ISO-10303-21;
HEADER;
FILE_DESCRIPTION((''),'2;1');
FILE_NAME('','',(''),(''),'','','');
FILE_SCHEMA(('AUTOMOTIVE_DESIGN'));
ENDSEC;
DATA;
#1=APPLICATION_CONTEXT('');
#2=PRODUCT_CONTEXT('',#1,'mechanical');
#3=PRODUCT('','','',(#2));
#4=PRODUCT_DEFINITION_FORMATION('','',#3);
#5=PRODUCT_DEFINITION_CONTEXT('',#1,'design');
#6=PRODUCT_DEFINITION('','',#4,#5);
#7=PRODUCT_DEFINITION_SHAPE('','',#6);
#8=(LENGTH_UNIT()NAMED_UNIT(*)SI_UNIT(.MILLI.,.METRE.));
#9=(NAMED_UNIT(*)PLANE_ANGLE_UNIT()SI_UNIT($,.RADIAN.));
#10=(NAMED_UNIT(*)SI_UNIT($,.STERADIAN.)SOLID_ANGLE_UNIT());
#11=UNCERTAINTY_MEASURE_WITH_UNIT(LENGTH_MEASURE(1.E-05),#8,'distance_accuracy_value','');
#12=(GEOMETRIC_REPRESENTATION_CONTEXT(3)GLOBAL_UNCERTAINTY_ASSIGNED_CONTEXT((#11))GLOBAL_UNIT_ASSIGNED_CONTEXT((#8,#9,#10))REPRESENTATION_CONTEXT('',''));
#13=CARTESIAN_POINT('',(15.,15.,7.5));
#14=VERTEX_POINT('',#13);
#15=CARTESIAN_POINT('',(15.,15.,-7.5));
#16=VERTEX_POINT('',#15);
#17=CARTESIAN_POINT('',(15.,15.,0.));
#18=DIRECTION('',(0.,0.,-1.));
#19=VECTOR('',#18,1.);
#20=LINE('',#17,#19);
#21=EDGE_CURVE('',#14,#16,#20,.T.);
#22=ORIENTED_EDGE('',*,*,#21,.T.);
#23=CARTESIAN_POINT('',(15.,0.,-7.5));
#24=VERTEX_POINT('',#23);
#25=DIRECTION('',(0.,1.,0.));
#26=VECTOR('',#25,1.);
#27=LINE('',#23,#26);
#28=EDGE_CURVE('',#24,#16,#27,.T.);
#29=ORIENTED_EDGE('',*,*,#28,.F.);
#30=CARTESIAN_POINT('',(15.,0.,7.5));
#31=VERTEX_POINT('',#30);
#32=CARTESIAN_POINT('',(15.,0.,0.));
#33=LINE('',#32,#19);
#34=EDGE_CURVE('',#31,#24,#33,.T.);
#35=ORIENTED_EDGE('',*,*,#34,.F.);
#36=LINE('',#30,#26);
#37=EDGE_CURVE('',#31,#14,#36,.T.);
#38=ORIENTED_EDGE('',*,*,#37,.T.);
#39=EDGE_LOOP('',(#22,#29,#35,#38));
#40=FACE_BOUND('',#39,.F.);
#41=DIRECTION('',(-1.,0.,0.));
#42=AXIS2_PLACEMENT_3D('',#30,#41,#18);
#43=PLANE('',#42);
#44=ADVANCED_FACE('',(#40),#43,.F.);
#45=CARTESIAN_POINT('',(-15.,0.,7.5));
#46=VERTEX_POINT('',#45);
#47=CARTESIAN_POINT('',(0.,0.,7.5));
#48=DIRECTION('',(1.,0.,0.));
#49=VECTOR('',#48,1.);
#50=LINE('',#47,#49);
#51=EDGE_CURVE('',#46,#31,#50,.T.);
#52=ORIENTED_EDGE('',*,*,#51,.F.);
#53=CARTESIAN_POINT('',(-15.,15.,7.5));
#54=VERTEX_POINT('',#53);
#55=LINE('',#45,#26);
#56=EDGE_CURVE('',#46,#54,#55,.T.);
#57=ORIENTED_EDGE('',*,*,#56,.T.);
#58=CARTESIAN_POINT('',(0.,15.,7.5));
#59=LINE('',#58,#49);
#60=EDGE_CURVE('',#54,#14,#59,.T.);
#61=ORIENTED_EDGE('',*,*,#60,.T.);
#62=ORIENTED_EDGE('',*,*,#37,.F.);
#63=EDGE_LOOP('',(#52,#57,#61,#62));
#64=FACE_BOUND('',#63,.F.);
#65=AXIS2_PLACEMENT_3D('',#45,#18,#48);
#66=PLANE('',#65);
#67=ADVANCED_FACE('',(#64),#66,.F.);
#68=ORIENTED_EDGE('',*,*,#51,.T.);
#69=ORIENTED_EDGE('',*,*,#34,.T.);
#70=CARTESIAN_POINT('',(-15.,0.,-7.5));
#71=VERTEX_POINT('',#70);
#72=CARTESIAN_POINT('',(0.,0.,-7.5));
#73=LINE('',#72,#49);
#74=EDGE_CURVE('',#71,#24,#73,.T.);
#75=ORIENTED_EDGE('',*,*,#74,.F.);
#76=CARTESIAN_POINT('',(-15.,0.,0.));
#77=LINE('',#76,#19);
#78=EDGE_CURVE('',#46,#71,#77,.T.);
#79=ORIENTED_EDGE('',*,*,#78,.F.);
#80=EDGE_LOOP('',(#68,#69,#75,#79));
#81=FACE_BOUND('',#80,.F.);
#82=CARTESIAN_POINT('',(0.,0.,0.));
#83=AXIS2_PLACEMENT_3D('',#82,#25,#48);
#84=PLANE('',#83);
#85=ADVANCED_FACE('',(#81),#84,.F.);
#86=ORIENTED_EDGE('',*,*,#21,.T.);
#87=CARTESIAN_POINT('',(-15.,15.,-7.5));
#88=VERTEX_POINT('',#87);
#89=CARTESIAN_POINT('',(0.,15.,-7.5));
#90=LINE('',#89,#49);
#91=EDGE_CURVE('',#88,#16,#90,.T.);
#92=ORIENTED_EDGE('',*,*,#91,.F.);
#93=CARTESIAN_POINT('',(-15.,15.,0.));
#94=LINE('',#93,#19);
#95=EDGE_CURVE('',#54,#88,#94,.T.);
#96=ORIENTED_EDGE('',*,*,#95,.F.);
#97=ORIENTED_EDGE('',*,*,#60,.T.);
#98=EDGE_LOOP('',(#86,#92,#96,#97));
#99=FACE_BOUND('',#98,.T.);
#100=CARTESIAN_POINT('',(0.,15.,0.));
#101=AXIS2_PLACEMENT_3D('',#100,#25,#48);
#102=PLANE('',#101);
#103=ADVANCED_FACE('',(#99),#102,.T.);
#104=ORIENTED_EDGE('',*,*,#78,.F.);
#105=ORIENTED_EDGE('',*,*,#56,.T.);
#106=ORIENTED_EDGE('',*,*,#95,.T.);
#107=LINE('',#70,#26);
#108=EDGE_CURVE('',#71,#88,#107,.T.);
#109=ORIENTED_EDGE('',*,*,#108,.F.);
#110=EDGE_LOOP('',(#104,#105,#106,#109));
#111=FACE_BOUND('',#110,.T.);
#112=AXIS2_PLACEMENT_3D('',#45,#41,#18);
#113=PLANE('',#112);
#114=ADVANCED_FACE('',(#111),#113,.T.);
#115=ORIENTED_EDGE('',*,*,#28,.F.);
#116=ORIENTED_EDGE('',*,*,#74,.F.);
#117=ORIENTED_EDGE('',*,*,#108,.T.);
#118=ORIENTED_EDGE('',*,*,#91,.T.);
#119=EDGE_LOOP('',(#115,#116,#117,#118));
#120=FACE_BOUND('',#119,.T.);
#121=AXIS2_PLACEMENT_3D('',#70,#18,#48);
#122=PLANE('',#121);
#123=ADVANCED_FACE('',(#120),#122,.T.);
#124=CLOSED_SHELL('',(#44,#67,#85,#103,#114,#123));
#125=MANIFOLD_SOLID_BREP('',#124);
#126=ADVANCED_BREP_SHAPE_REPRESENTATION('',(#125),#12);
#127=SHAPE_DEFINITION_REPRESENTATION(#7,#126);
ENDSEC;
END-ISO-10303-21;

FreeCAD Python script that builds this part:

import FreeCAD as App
import Part
import Sketcher
from FreeCAD import Vector


def add_polygon(sketch, points):
    """Adds a closed chain of lines whose ends are joined by coincident constraints."""
    first, n = sketch.GeometryCount, len(points)
    for a, b in zip(points, points[1:] + points[:1]):
        sketch.addGeometry(Part.LineSegment(App.Vector(*a, 0), App.Vector(*b, 0)), False)
    for i in range(n):
        sketch.addConstraint(Sketcher.Constraint("Coincident", first + i, 2, first + (i + 1) % n, 1))

doc = App.newDocument("Part")
params = doc.addObject("Spreadsheet::Sheet", "Params")
for row, (alias, value) in enumerate([
    ("sketch1_width", "30 mm"),
    ("sketch1_height", "15 mm"),
    ("pad1_length", "15 mm"),
], start=1):
    params.set(f"A{row}", alias)
    params.set(f"B{row}", "=" + value)
    params.setAlias(f"B{row}", alias)

body = doc.addObject("PartDesign::Body", "Body")

sketch1 = body.newObject("Sketcher::SketchObject", "Sketch")
sketch1.AttachmentSupport = (doc.getObject("XZ_Plane"), [""])
sketch1.MapMode = "FlatFace"
add_polygon(sketch1, [(-15, -8), (-15, 8), (15, 8), (15, -8)])
sketch1.addConstraint(Sketcher.Constraint("Vertical", 0))
sketch1.addConstraint(Sketcher.Constraint("Horizontal", 1))
sketch1.addConstraint(Sketcher.Constraint("Vertical", 2))
sketch1.addConstraint(Sketcher.Constraint("Horizontal", 3))
sketch1.addConstraint(Sketcher.Constraint("Symmetric", 0, 2, 2, 2, -1, 1))
sketch1.addConstraint(Sketcher.Constraint("DistanceX", 1, 1, 1, 2, 30.0))
sketch1.addConstraint(Sketcher.Constraint("DistanceY", 0, 1, 0, 2, 15.0))
sketch1.setExpression("Constraints[9]", "Params.sketch1_width")
sketch1.setExpression("Constraints[10]", "Params.sketch1_height")
pad1 = body.newObject("PartDesign::Pad", "Pad")
pad1.Profile = sketch1
pad1.setExpression("Length", "Params.pad1_length")
pad1.Reversed = True

doc.recompute()
